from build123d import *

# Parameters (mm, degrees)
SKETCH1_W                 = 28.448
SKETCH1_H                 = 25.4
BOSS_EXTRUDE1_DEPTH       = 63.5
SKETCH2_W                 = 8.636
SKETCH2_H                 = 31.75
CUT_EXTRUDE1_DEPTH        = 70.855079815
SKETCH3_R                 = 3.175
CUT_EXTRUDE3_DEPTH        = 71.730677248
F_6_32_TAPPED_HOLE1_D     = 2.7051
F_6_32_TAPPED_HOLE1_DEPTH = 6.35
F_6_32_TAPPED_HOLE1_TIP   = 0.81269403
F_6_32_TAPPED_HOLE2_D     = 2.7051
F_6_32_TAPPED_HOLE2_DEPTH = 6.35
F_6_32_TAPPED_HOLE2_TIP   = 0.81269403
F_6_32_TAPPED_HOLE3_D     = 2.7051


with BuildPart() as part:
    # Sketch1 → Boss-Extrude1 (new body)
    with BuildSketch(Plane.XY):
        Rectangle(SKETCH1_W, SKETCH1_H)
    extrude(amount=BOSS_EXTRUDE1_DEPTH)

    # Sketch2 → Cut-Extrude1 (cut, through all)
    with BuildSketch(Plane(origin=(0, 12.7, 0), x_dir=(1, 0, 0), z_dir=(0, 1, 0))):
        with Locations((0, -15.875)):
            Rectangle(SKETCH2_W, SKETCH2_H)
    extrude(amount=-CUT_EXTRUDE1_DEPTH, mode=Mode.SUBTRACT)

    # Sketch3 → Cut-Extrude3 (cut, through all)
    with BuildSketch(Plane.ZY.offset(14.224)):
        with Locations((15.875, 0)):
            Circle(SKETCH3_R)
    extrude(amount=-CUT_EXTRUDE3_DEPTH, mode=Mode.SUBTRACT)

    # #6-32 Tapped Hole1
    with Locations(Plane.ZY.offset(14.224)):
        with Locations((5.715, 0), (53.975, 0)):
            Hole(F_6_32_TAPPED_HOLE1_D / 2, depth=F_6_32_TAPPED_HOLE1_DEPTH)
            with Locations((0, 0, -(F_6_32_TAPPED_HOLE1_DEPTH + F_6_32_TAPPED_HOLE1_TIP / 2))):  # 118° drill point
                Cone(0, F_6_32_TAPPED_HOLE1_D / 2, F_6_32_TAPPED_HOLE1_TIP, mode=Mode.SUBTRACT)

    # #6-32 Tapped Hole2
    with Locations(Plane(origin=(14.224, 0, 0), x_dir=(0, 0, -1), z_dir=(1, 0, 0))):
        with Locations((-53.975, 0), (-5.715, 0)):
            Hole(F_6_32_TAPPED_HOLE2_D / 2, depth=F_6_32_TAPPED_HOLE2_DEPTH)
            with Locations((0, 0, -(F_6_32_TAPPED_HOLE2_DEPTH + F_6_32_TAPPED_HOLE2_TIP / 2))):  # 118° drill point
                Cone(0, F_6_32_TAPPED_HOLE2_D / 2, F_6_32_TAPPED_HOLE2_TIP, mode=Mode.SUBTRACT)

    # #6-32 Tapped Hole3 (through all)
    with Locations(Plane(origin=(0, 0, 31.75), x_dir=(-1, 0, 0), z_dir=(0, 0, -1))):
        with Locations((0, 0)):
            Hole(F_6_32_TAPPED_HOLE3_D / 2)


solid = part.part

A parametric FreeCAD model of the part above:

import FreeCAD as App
import Part
import Sketcher
from FreeCAD import Vector
Q = App.Units.Quantity


def add_polygon(sketch, points):
    """Adds a closed chain of lines whose ends are joined by coincident constraints."""
    first, n = sketch.GeometryCount, len(points)
    for a, b in zip(points, points[1:] + points[:1]):
        sketch.addGeometry(Part.LineSegment(App.Vector(*a, 0), App.Vector(*b, 0)), False)
    for i in range(n):
        sketch.addConstraint(Sketcher.Constraint("Coincident", first + i, 2, first + (i + 1) % n, 1))

doc = App.newDocument("Part")
params = doc.addObject("Spreadsheet::Sheet", "Params")
for row, (alias, value) in enumerate([
    ("sketch1_height", "1 in"),
    ("sketch1_width", "1.12 in"),
    ("pad1_length", "2.5 in"),
    ("sketch2_width", "0.34 in"),
    ("sketch2_height", "1.25 in"),
    ("sketch3_diameter", "0.25 in"),
    ("hole_diameter", "0.1065 in"),
    ("hole_depth", "0.25 in"),
    ("hole2_diameter", "0.1065 in"),
    ("hole2_depth", "0.25 in"),
    ("hole3_diameter", "0.1065 in"),
], start=1):
    params.set(f"A{row}", alias)
    params.set(f"B{row}", "=" + value)
    params.setAlias(f"B{row}", alias)

body = doc.addObject("PartDesign::Body", "Body")

sketch1 = doc.addObject("Sketcher::SketchObject", "Sketch")
body.addObject(sketch1)
sketch1.AttachmentSupport = (doc.XY_Plane, [""])
sketch1.MapMode = "FlatFace"
add_polygon(sketch1, [(-14, 13), (-14, -13), (14, -13), (14, 13)])
sketch1.addConstraint([
    Sketcher.Constraint("Vertical", 0),
    Sketcher.Constraint("Horizontal", 1),
    Sketcher.Constraint("Vertical", 2),
    Sketcher.Constraint("Horizontal", 3),
    Sketcher.Constraint("Symmetric", 0, 2, 2, 2, -1, 1),
    Sketcher.Constraint("DistanceY", 0, 2, 0, 1, Q("1 in")),
    Sketcher.Constraint("DistanceX", 1, 1, 1, 2, Q("1.12 in")),
])
sketch1.setExpression("Constraints[9]", "Params.sketch1_height")
sketch1.setExpression("Constraints[10]", "Params.sketch1_width")
pad1 = doc.addObject("PartDesign::Pad", "Pad")
body.addObject(pad1)
pad1.Profile = sketch1
pad1.setExpression("Length", "Params.pad1_length")

sketch2 = doc.addObject("Sketcher::SketchObject", "Sketch001")
body.addObject(sketch2)
sketch2.AttachmentSupport = (doc.XZ_Plane, [""])
sketch2.MapMode = "FlatFace"
sketch2.AttachmentOffset = App.Placement(Vector(0, 0, -0.5 * 25.4), App.Rotation())
add_polygon(sketch2, [(-4, 0), (-4, 32), (4, 32), (4, 0)])
sketch2.addConstraint([
    Sketcher.Constraint("Vertical", 0),
    Sketcher.Constraint("Horizontal", 1),
    Sketcher.Constraint("Vertical", 2),
    Sketcher.Constraint("Horizontal", 3),
    Sketcher.Constraint("Symmetric", 2, 2, 3, 2, -1, 1),
    Sketcher.Constraint("DistanceX", 1, 1, 1, 2, Q("0.34 in")),
    Sketcher.Constraint("DistanceY", 0, 1, 0, 2, Q("1.25 in")),
])
sketch2.setExpression("Constraints[9]", "Params.sketch2_width")
sketch2.setExpression("Constraints[10]", "Params.sketch2_height")
pocket1 = doc.addObject("PartDesign::Pocket", "Pocket")
body.addObject(pocket1)
pocket1.Profile = sketch2
pocket1.Type = "ThroughAll"
pocket1.Reversed = True

sketch3 = doc.addObject("Sketcher::SketchObject", "Sketch002")
body.addObject(sketch3)
sketch3.AttachmentSupport = (doc.YZ_Plane, [""])
sketch3.MapMode = "FlatFace"
sketch3.AttachmentOffset = App.Placement(Vector(0, 0, -0.56 * 25.4), App.Rotation())
sketch3.addGeometry(Part.Circle(Vector(0, 15.9, 0), Vector(0, 0, 1), 3.2), False)
sketch3.addConstraint([
    Sketcher.Constraint("PointOnObject", 0, 3, -2),
    Sketcher.Constraint("Diameter", 0, Q("0.25 in")),
    Sketcher.Constraint("DistanceY", -1, 1, 0, 3, Q("0.625 in")),
])
sketch3.setExpression("Constraints[1]", "Params.sketch3_diameter")
pocket2 = doc.addObject("PartDesign::Pocket", "Pocket001")
body.addObject(pocket2)
pocket2.Profile = sketch3
pocket2.Type = "ThroughAll"
pocket2.Reversed = True

sketch4 = doc.addObject("Sketcher::SketchObject", "Sketch003")
body.addObject(sketch4)
sketch4.AttachmentSupport = (doc.YZ_Plane, [""])
sketch4.MapMode = "FlatFace"
sketch4.AttachmentOffset = App.Placement(Vector(0, 0, -0.56 * 25.4), App.Rotation())
sketch4.addGeometry([
    Part.Circle(Vector(0, 5.7, 0), Vector(0, 0, 1), 1.4),
    Part.Circle(Vector(0, 54, 0), Vector(0, 0, 1), 1.4),
], False)
sketch4.addConstraint([
    Sketcher.Constraint("Equal", 0, 1),
    Sketcher.Constraint("PointOnObject", 0, 3, -2),
    Sketcher.Constraint("PointOnObject", 1, 3, -2),
    Sketcher.Constraint("Diameter", 0, Q("0.1065 in")),
    Sketcher.Constraint("DistanceY", 0, 3, 1, 3, Q("1.9 in")),
    Sketcher.Constraint("DistanceY", -1, 1, 0, 3, Q("0.225 in")),
])
doc.recompute()
hole = doc.addObject("PartDesign::Hole", "Hole")
body.addObject(hole)
hole.Profile = sketch4
hole.ThreadType = "None"
hole.setExpression("Diameter", "Params.hole_diameter")
hole.DepthType = "Dimension"
hole.setExpression("Depth", "Params.hole_depth")
hole.DrillPoint = "Angled"
hole.DrillPointAngle = 118
hole.Reversed = True

sketch5 = doc.addObject("Sketcher::SketchObject", "Sketch004")
body.addObject(sketch5)
sketch5.AttachmentSupport = (doc.YZ_Plane, [""])
sketch5.MapMode = "FlatFace"
sketch5.AttachmentOffset = App.Placement(Vector(0, 0, 0.56 * 25.4), App.Rotation())
sketch5.addGeometry([
    Part.Circle(Vector(0, 54, 0), Vector(0, 0, 1), 1.4),
    Part.Circle(Vector(0, 5.7, 0), Vector(0, 0, 1), 1.4),
], False)
sketch5.addConstraint([
    Sketcher.Constraint("Equal", 0, 1),
    Sketcher.Constraint("PointOnObject", 0, 3, -2),
    Sketcher.Constraint("PointOnObject", 1, 3, -2),
    Sketcher.Constraint("Diameter", 0, Q("0.1065 in")),
    Sketcher.Constraint("DistanceY", 1, 3, 0, 3, Q("1.9 in")),
    Sketcher.Constraint("DistanceY", -1, 1, 0, 3, Q("2.125 in")),
])
doc.recompute()
hole2 = doc.addObject("PartDesign::Hole", "Hole001")
body.addObject(hole2)
hole2.Profile = sketch5
hole2.ThreadType = "None"
hole2.setExpression("Diameter", "Params.hole2_diameter")
hole2.DepthType = "Dimension"
hole2.setExpression("Depth", "Params.hole2_depth")
hole2.DrillPoint = "Angled"
hole2.DrillPointAngle = 118

sketch6 = doc.addObject("Sketcher::SketchObject", "Sketch005")
body.addObject(sketch6)
sketch6.AttachmentSupport = (doc.XY_Plane, [""])
sketch6.MapMode = "FlatFace"
sketch6.AttachmentOffset = App.Placement(Vector(0, 0, 1.25 * 25.4), App.Rotation())
sketch6.addGeometry(Part.Circle(Vector(0, 0, 0), Vector(0, 0, 1), 1.4), False)
sketch6.addConstraint([
    Sketcher.Constraint("Coincident", 0, 3, -1, 1),
    Sketcher.Constraint("Diameter", 0, Q("0.1065 in")),
])
doc.recompute()
hole3 = doc.addObject("PartDesign::Hole", "Hole002")
body.addObject(hole3)
hole3.Profile = sketch6
hole3.ThreadType = "None"
hole3.setExpression("Diameter", "Params.hole3_diameter")
hole3.DepthType = "ThroughAll"
hole3.Reversed = True

doc.recompute()
